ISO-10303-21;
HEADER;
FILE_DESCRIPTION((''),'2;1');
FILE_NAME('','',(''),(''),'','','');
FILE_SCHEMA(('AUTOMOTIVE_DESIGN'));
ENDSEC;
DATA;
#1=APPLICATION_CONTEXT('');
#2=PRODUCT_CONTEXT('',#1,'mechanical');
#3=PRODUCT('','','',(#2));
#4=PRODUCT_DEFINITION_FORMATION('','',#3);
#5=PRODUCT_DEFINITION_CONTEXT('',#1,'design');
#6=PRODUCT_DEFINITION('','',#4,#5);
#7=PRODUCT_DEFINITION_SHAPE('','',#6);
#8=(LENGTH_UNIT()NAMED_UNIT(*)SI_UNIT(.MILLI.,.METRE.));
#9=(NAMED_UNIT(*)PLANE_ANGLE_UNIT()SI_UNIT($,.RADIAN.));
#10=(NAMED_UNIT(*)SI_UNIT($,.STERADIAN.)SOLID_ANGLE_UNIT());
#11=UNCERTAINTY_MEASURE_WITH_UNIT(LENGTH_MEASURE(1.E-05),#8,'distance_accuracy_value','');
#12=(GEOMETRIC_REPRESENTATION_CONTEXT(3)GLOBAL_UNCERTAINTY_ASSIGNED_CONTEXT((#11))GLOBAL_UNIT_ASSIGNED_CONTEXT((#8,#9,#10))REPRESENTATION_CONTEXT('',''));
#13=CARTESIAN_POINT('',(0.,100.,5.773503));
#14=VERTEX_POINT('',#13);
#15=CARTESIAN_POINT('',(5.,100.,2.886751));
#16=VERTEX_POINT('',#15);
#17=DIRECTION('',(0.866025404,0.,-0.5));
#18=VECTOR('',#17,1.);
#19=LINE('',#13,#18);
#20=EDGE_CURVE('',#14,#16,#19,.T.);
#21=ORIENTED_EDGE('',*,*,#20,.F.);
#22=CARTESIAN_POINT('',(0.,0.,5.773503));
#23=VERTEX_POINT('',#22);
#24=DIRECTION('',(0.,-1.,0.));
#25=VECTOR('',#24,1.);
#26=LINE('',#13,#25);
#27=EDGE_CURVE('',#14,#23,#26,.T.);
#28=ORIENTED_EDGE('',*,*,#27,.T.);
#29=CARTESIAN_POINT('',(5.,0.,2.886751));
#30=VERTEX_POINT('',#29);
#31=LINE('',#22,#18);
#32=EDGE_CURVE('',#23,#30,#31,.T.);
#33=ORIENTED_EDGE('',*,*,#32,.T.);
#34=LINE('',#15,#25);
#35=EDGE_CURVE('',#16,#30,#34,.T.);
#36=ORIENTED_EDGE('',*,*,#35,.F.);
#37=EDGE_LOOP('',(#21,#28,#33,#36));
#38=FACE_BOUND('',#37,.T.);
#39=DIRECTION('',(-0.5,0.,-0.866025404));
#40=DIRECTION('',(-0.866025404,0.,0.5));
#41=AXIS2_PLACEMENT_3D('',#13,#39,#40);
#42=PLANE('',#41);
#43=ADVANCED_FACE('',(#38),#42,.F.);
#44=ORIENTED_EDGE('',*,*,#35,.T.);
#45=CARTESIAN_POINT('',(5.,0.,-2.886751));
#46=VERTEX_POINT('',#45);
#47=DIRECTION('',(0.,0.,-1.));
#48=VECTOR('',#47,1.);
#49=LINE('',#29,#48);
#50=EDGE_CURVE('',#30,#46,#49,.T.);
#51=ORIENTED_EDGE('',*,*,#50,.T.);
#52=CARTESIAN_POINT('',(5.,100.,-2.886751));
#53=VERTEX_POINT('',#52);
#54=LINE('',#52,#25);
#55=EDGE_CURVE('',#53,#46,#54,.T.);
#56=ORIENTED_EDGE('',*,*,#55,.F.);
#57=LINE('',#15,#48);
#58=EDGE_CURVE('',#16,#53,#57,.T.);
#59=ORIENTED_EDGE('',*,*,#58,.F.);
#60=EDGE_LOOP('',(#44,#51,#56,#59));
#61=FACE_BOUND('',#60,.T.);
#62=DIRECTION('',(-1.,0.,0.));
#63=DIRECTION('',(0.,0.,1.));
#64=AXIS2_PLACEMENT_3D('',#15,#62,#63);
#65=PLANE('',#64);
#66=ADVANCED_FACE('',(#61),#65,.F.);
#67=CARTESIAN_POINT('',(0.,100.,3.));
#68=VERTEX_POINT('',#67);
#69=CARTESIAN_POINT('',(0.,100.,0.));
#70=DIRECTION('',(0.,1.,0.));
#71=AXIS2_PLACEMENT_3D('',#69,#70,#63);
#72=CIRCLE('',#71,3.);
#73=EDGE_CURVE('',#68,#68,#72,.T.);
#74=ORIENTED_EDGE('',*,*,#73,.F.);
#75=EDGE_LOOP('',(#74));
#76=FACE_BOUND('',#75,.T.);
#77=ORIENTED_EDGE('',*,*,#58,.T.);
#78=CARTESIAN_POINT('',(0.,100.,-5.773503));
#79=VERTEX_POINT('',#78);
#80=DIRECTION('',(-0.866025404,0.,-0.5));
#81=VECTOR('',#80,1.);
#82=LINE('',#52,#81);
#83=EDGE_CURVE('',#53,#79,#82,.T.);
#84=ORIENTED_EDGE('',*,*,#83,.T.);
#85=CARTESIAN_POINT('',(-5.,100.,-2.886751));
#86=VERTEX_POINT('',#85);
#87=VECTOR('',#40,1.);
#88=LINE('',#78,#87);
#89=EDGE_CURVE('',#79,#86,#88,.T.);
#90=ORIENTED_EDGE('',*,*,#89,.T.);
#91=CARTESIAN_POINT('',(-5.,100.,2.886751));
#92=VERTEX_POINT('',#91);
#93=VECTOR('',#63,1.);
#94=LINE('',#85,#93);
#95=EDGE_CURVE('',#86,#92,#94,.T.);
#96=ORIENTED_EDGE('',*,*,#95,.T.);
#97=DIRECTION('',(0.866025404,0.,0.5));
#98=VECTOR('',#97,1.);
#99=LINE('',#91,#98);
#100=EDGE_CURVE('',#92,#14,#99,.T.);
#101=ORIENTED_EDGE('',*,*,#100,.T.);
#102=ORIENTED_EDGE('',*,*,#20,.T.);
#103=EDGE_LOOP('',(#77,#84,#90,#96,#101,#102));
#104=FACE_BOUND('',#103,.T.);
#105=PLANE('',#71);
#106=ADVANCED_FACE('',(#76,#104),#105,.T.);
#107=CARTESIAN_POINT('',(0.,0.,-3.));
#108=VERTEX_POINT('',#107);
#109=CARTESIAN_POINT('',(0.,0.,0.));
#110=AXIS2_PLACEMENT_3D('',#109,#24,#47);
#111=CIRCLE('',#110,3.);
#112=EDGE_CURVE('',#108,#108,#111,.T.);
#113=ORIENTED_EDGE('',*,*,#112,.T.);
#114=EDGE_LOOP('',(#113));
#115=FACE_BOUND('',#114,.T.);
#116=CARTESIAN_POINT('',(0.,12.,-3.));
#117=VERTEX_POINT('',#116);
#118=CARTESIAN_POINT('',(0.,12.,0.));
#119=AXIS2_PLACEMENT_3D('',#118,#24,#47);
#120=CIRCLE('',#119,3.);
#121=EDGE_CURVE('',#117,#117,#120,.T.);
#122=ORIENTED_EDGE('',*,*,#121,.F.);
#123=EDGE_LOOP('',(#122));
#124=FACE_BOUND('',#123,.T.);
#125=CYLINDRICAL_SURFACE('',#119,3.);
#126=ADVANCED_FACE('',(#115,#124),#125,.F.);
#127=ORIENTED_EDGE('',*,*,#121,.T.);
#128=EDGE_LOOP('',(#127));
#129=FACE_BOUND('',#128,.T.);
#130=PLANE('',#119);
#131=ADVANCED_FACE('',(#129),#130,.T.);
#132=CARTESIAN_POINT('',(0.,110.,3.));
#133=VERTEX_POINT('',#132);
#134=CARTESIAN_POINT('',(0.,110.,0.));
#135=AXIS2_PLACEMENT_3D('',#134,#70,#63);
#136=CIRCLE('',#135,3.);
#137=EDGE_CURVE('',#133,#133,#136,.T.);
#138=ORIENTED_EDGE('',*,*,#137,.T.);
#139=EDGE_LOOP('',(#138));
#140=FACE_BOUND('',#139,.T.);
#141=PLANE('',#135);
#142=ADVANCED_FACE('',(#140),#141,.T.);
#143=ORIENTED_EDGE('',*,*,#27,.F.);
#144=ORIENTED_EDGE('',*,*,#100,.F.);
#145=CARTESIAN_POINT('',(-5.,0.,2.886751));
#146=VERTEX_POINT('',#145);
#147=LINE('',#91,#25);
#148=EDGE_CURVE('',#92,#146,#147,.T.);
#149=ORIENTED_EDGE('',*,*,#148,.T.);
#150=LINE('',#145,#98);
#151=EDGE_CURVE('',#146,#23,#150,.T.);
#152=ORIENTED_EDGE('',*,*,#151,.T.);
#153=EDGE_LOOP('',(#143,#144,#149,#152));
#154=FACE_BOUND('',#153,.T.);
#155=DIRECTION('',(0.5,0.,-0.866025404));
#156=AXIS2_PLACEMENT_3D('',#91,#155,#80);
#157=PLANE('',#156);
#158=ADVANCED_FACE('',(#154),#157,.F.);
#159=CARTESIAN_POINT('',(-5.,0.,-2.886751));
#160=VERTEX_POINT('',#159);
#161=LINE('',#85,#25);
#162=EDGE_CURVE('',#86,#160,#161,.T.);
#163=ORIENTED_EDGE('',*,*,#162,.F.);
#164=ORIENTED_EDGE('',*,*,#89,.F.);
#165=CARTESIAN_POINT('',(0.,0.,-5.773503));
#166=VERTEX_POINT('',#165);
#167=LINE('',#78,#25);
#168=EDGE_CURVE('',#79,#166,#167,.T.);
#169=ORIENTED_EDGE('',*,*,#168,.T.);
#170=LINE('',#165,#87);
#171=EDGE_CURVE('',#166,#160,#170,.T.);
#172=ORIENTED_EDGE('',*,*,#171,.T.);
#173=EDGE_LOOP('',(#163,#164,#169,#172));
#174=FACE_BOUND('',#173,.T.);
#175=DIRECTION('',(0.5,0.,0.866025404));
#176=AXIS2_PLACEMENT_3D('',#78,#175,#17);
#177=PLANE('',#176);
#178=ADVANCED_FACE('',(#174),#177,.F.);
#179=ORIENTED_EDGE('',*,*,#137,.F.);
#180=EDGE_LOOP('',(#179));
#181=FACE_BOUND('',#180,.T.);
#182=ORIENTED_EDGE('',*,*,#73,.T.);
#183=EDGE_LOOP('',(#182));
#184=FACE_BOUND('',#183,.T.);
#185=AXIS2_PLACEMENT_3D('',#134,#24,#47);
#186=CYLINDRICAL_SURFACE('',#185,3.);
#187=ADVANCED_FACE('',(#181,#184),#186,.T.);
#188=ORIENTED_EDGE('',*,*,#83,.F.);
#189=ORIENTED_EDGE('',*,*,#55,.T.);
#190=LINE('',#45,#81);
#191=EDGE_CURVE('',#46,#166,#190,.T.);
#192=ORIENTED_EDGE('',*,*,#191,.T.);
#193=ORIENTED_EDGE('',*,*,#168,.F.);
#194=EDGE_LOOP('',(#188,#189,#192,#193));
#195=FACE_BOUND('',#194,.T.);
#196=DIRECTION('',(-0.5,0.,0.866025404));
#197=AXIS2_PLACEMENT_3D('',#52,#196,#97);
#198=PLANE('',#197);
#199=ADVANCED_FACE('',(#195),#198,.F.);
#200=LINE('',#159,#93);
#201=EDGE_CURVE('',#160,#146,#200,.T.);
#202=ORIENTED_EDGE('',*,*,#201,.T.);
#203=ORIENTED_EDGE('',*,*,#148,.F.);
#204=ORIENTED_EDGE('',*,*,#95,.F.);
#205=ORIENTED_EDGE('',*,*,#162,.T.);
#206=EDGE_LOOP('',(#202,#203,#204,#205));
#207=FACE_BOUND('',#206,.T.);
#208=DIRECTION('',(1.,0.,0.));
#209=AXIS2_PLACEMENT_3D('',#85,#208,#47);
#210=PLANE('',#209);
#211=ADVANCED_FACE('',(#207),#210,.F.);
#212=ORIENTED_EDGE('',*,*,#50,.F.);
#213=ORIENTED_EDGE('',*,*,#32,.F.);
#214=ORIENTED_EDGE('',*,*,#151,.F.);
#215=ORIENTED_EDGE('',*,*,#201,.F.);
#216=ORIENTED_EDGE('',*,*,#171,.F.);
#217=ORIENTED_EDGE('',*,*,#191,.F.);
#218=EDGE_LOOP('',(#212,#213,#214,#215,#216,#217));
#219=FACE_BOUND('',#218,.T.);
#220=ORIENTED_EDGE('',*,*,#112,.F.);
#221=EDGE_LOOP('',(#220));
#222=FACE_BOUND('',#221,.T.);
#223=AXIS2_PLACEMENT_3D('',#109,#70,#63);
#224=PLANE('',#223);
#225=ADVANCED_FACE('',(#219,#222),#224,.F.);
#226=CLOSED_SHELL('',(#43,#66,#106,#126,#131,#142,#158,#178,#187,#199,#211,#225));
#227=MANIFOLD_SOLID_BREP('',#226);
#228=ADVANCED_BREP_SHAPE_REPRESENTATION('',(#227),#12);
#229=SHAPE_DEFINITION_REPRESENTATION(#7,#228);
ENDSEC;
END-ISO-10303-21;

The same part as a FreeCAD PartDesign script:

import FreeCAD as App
import Part
import Sketcher

V = App.Vector
Q = App.Units.Quantity

doc = App.newDocument("Part")
body = doc.addObject("PartDesign::Body", "Body")

# Sketch on XZ plane
sketch1 = body.newObject("Sketcher::SketchObject", "Sketch")
sketch1.AttachmentSupport = (doc.getObject("XZ_Plane"), [""])
sketch1.MapMode = "FlatFace"
sketch1.addGeometry([
    Part.LineSegment(V(0, 6, 0), V(5, 3, 0)),  # 0
    Part.LineSegment(V(5, 3, 0), V(5, -3, 0)),  # 1
    Part.LineSegment(V(5, -3, 0), V(0, -6, 0)),  # 2
    Part.LineSegment(V(0, -6, 0), V(-5, -3, 0)),  # 3
    Part.LineSegment(V(-5, -3, 0), V(-5, 3, 0)),  # 4
    Part.LineSegment(V(-5, 3, 0), V(0, 6, 0)),  # 5
], False)
sketch1.addConstraint([
    Sketcher.Constraint("Coincident", 0, 2, 1, 1),
    Sketcher.Constraint("Coincident", 1, 2, 2, 1),
    Sketcher.Constraint("Coincident", 2, 2, 3, 1),
    Sketcher.Constraint("Coincident", 3, 2, 4, 1),
    Sketcher.Constraint("Coincident", 4, 2, 5, 1),
    Sketcher.Constraint("Coincident", 5, 2, 0, 1),
    Sketcher.Constraint("Vertical", 1),
    Sketcher.Constraint("Vertical", 4),
    Sketcher.Constraint("Symmetric", 0, 2, 3, 2, -1, 1),
    Sketcher.Constraint("Symmetric", 2, 2, 5, 2, -1, 1),
    Sketcher.Constraint("PointOnObject", 2, 2, -2),
    Sketcher.Constraint("Parallel", 2, 5),
    Sketcher.Constraint("Horizontal", 1, 2, 3, 2),
    Sketcher.Constraint("Angle", 0, Q("-30 deg")),
    Sketcher.Constraint("DistanceX", -1, 1, 0, 2, 5.0),
    Sketcher.Constraint("DistanceY", 1, 2, 1, 1, 5.773503),
])
pad1 = body.newObject("PartDesign::Pad", "Pad")
pad1.Profile = sketch1
pad1.Length = 100
pad1.Reversed = True

# Sketch on XZ plane
sketch2 = body.newObject("Sketcher::SketchObject", "Sketch001")
sketch2.AttachmentSupport = (doc.getObject("XZ_Plane"), [""])
sketch2.MapMode = "FlatFace"
sketch2.AttachmentOffset = App.Placement(V(0, 0, -100), App.Rotation())
sketch2.addGeometry(Part.Circle(V(0, 0, 0), V(0, 0, 1), 3), False)
sketch2.addConstraint([
    Sketcher.Constraint("Coincident", 0, 3, -1, 1),
    Sketcher.Constraint("Diameter", 0, 6.0),
])
pad2 = body.newObject("PartDesign::Pad", "Pad001")
pad2.Profile = sketch2
pad2.Length = 10
pad2.Reversed = True

# Sketch on XZ plane
sketch3 = body.newObject("Sketcher::SketchObject", "Sketch002")
sketch3.AttachmentSupport = (doc.getObject("XZ_Plane"), [""])
sketch3.MapMode = "FlatFace"
sketch3.addGeometry(Part.Circle(V(0, 0, 0), V(0, 0, 1), 3), False)
sketch3.addConstraint([
    Sketcher.Constraint("Coincident", 0, 3, -1, 1),
    Sketcher.Constraint("Diameter", 0, 6.0),
])
pocket1 = body.newObject("PartDesign::Pocket", "Pocket")
pocket1.Profile = sketch3
pocket1.Length = 12

doc.recompute()
